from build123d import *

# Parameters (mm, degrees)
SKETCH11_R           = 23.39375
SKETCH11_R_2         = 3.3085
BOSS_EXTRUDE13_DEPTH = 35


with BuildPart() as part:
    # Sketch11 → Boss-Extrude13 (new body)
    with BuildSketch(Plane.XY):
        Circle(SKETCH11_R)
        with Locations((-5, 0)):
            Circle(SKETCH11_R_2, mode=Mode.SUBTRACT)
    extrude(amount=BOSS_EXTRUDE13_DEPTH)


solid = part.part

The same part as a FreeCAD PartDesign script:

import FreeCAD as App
import Part
import Sketcher

V = App.Vector
Q = App.Units.Quantity

doc = App.newDocument("Part")
body = doc.addObject("PartDesign::Body", "Body")

# Sketch on XY plane
sketch1 = body.newObject("Sketcher::SketchObject", "Sketch")
sketch1.AttachmentSupport = (doc.getObject("XY_Plane"), [""])
sketch1.MapMode = "FlatFace"
sketch1.addGeometry(Part.Circle(V(0, 0, 0), V(0, 0, 1), 23.4), False)
sketch1.addGeometry(Part.Circle(V(-5, 0, 0), V(0, 0, 1), 3.3), False)
sketch1.addConstraint(Sketcher.Constraint("Coincident", 0, 3, -1, 1))
sketch1.addConstraint(Sketcher.Constraint("PointOnObject", 1, 3, -1))
sketch1.addConstraint(Sketcher.Constraint("Diameter", 1, Q("6.617 mm")))
sketch1.addConstraint(Sketcher.Constraint("DistanceX", 1, 3, -1, 1, Q("5 mm")))
sketch1.addConstraint(Sketcher.Constraint("Diameter", 0, Q("46.7875 mm")))
pad1 = body.newObject("PartDesign::Pad", "Pad")
pad1.Profile = sketch1
pad1.Length = 35

doc.recompute()
